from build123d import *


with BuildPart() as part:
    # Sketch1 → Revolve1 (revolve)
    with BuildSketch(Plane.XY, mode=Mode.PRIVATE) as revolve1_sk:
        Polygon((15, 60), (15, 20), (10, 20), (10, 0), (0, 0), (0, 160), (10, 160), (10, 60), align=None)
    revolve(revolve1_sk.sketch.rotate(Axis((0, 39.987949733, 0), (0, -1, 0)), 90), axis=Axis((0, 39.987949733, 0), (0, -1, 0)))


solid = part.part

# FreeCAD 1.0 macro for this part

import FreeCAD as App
import Part
import Sketcher
from FreeCAD import Vector
Q = App.Units.Quantity

doc = App.newDocument("Part")
params = doc.addObject("Spreadsheet::Sheet", "Params")
for row, (alias, value) in enumerate([
    ("sketch1_width", "5 mm"),
    ("sketch1_width2", "10 mm"),
    ("sketch1_height", "40 mm"),
    ("sketch1_height2", "100 mm"),
    ("sketch1_height3", "160 mm"),
    ("revolution_angle", "360 deg"),
], start=1):
    params.set(f"A{row}", alias)
    params.set(f"B{row}", "=" + value)
    params.setAlias(f"B{row}", alias)

body = doc.addObject("PartDesign::Body", "Body")

# Sketch on XY plane
sketch1 = body.newObject("Sketcher::SketchObject", "Sketch")
sketch1.AttachmentSupport = (doc.getObject("XY_Plane"), [""])
sketch1.MapMode = "FlatFace"
sketch1.addGeometry(Part.LineSegment(Vector(15, 20, 0), Vector(15, 60, 0)), False)
sketch1.addGeometry(Part.LineSegment(Vector(15, 60, 0), Vector(10, 60, 0)), False)
sketch1.addGeometry(Part.LineSegment(Vector(10, 60, 0), Vector(10, 160, 0)), False)
sketch1.addGeometry(Part.LineSegment(Vector(10, 160, 0), Vector(0, 160, 0)), False)
sketch1.addGeometry(Part.LineSegment(Vector(0, 160, 0), Vector(0, 0, 0)), False)
sketch1.addGeometry(Part.LineSegment(Vector(0, 0, 0), Vector(10, 0, 0)), False)
sketch1.addGeometry(Part.LineSegment(Vector(10, 0, 0), Vector(10, 20, 0)), False)
sketch1.addGeometry(Part.LineSegment(Vector(10, 20, 0), Vector(15, 20, 0)), False)
sketch1.addConstraint(Sketcher.Constraint("Coincident", 0, 2, 1, 1))
sketch1.addConstraint(Sketcher.Constraint("Coincident", 1, 2, 2, 1))
sketch1.addConstraint(Sketcher.Constraint("Coincident", 2, 2, 3, 1))
sketch1.addConstraint(Sketcher.Constraint("Coincident", 3, 2, 4, 1))
sketch1.addConstraint(Sketcher.Constraint("Coincident", 4, 2, 5, 1))
sketch1.addConstraint(Sketcher.Constraint("Coincident", 5, 2, 6, 1))
sketch1.addConstraint(Sketcher.Constraint("Coincident", 6, 2, 7, 1))
sketch1.addConstraint(Sketcher.Constraint("Coincident", 7, 2, 0, 1))
sketch1.addConstraint(Sketcher.Constraint("Vertical", 0))
sketch1.addConstraint(Sketcher.Constraint("Horizontal", 1))
sketch1.addConstraint(Sketcher.Constraint("Vertical", 2))
sketch1.addConstraint(Sketcher.Constraint("Horizontal", 3))
sketch1.addConstraint(Sketcher.Constraint("Vertical", 4))
sketch1.addConstraint(Sketcher.Constraint("Horizontal", 5))
sketch1.addConstraint(Sketcher.Constraint("Vertical", 6))
sketch1.addConstraint(Sketcher.Constraint("Horizontal", 7))
sketch1.addConstraint(Sketcher.Constraint("Coincident", 4, 2, -1, 1))
sketch1.addConstraint(Sketcher.Constraint("Vertical", 2, 2, 5, 2))
sketch1.addConstraint(Sketcher.Constraint("DistanceX", 1, 2, 1, 1, Q("5 mm")))
sketch1.addConstraint(Sketcher.Constraint("DistanceX", 3, 2, 3, 1, Q("10 mm")))
sketch1.addConstraint(Sketcher.Constraint("DistanceY", 0, 1, 0, 2, Q("40 mm")))
sketch1.addConstraint(Sketcher.Constraint("DistanceY", 2, 1, 2, 2, Q("100 mm")))
sketch1.addConstraint(Sketcher.Constraint("DistanceY", 4, 2, 4, 1, Q("160 mm")))
sketch1.setExpression("Constraints[18]", "Params.sketch1_width")
sketch1.setExpression("Constraints[19]", "Params.sketch1_width2")
sketch1.setExpression("Constraints[20]", "Params.sketch1_height")
sketch1.setExpression("Constraints[21]", "Params.sketch1_height2")
sketch1.setExpression("Constraints[22]", "Params.sketch1_height3")
revolution = body.newObject("PartDesign::Revolution", "Revolution")
revolution.Profile = sketch1
revolution.ReferenceAxis = (sketch1, ["V_Axis"])
revolution.setExpression("Angle", "Params.revolution_angle")

doc.recompute()
